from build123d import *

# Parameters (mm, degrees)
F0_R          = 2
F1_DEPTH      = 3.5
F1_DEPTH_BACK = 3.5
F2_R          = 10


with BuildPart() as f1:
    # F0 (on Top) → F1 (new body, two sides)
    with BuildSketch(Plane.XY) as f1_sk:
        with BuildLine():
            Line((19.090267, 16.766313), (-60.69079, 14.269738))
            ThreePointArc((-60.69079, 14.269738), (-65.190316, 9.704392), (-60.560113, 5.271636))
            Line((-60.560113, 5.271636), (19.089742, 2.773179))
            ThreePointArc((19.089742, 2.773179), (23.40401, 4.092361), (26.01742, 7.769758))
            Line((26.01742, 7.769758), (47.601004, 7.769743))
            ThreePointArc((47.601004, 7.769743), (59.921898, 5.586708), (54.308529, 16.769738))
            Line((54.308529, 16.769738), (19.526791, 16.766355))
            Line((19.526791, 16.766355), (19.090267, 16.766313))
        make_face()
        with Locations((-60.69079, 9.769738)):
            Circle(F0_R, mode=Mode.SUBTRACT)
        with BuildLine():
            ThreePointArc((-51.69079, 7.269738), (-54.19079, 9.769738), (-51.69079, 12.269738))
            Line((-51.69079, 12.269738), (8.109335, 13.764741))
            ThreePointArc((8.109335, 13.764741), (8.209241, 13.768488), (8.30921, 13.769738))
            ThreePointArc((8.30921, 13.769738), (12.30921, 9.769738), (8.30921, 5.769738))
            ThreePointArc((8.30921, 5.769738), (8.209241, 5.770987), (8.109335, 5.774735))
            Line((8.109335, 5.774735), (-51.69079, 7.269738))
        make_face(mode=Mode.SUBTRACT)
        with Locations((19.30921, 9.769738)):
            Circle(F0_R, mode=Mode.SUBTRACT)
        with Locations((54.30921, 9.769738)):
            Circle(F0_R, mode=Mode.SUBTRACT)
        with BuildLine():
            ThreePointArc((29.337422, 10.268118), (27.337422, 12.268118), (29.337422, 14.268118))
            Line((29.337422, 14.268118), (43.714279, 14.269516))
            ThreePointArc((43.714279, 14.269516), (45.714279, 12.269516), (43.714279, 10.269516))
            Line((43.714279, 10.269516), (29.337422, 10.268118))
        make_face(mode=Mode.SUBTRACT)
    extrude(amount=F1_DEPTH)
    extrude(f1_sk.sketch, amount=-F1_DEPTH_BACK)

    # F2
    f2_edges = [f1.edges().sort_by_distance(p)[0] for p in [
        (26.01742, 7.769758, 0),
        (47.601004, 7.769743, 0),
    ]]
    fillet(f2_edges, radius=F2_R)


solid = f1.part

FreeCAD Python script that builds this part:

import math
import FreeCAD as App
import Part
import Sketcher
from FreeCAD import Vector


def edges_at(feature, points):
    """Names of the edges that pass closest to the given points."""
    edges = feature.Shape.Edges
    near = lambda p: min(range(len(edges)), key=lambda i: edges[i].distToShape(Part.Vertex(*p))[0])
    return sorted({f"Edge{near(p) + 1}" for p in points})

doc = App.newDocument("Part")
body = doc.addObject("PartDesign::Body", "Body")

# Sketch on XY plane
sketch1 = body.newObject("Sketcher::SketchObject", "Sketch")
sketch1.AttachmentSupport = (doc.getObject("XY_Plane"), [""])
sketch1.MapMode = "FlatFace"
sketch1.addGeometry([
    Part.LineSegment(Vector(19.09, 16.77, 0), Vector(-60.69, 14.27, 0)),  # 0
    Part.ArcOfCircle(Part.Circle(Vector(-60.69, 9.77, 0), Vector(0, 0, 1), 4.5), math.radians(90), math.radians(272)),  # 1
    Part.LineSegment(Vector(-60.56, 5.27, 0), Vector(19.09, 2.77, 0)),  # 2
    Part.ArcOfCircle(Part.Circle(Vector(19.31, 9.77, 0), Vector(0, 0, 1), 7), math.radians(-92), math.radians(-17)),  # 3
    Part.LineSegment(Vector(26.02, 7.77, 0), Vector(47.6, 7.77, 0)),  # 4
    Part.ArcOfCircle(Part.Circle(Vector(54.31, 9.77, 0), Vector(0, 0, 1), 7), math.radians(-163), math.radians(90)),  # 5
    Part.LineSegment(Vector(54.31, 16.77, 0), Vector(19.53, 16.77, 0)),  # 6
    Part.LineSegment(Vector(19.53, 16.77, 0), Vector(19.09, 16.77, 0)),  # 7
    Part.Circle(Vector(-60.69, 9.77, 0), Vector(0, 0, 1), 2),  # 8
    Part.LineSegment(Vector(8.11, 5.77, 0), Vector(-51.69, 7.27, 0)),  # 9
    Part.ArcOfCircle(Part.Circle(Vector(-51.69, 9.77, 0), Vector(0, 0, 1), 2.5), math.radians(90), math.radians(270)),  # 10
    Part.LineSegment(Vector(-51.69, 12.27, 0), Vector(8.11, 13.76, 0)),  # 11
    Part.ArcOfCircle(Part.Circle(Vector(8.31, 9.77, 0), Vector(0, 0, 1), 4), math.radians(90), math.radians(92.86)),  # 12
    Part.ArcOfCircle(Part.Circle(Vector(8.31, 9.77, 0), Vector(0, 0, 1), 4), math.radians(-90), math.radians(90)),  # 13
    Part.ArcOfCircle(Part.Circle(Vector(8.31, 9.77, 0), Vector(0, 0, 1), 4), math.radians(-92.86), math.radians(-90)),  # 14
    Part.Circle(Vector(19.31, 9.77, 0), Vector(0, 0, 1), 2),  # 15
    Part.Circle(Vector(54.31, 9.77, 0), Vector(0, 0, 1), 2),  # 16
    Part.LineSegment(Vector(43.71, 10.27, 0), Vector(29.34, 10.27, 0)),  # 17
    Part.ArcOfCircle(Part.Circle(Vector(29.34, 12.27, 0), Vector(0, 0, 1), 2), math.radians(90), math.radians(270)),  # 18
    Part.LineSegment(Vector(29.34, 14.27, 0), Vector(43.71, 14.27, 0)),  # 19
    Part.ArcOfCircle(Part.Circle(Vector(43.71, 12.27, 0), Vector(0, 0, 1), 2), math.radians(-90), math.radians(90)),  # 20
], False)
sketch1.addConstraint([
    Sketcher.Constraint("Coincident", 0, 2, 1, 1),
    Sketcher.Constraint("Coincident", 1, 2, 2, 1),
    Sketcher.Constraint("Tangent", 2, 2, 3, 1),
    Sketcher.Constraint("Coincident", 3, 2, 4, 1),
    Sketcher.Constraint("Coincident", 4, 2, 5, 1),
    Sketcher.Constraint("Tangent", 5, 2, 6, 1),
    Sketcher.Constraint("Coincident", 6, 2, 7, 1),
    Sketcher.Constraint("Coincident", 7, 2, 0, 1),
    Sketcher.Constraint("Coincident", 9, 2, 10, 2),
    Sketcher.Constraint("Coincident", 10, 1, 11, 1),
    Sketcher.Constraint("Coincident", 11, 2, 12, 2),
    Sketcher.Constraint("Coincident", 12, 1, 13, 2),
    Sketcher.Constraint("Coincident", 13, 1, 14, 2),
    Sketcher.Constraint("Coincident", 14, 1, 9, 1),
    Sketcher.Constraint("Coincident", 17, 2, 18, 2),
    Sketcher.Constraint("Coincident", 18, 1, 19, 1),
    Sketcher.Constraint("Coincident", 19, 2, 20, 2),
    Sketcher.Constraint("Coincident", 20, 1, 17, 1),
    Sketcher.Constraint("Coincident", 8, 3, 1, 3),
    Sketcher.Constraint("Coincident", 15, 3, 3, 3),
    Sketcher.Constraint("Coincident", 16, 3, 5, 3),
    Sketcher.Constraint("Equal", 3, 5),
    Sketcher.Constraint("Equal", 8, 15),
    Sketcher.Constraint("Equal", 15, 16),
    Sketcher.Constraint("Equal", 16, 18),
    Sketcher.Constraint("Equal", 18, 20),
    Sketcher.Constraint("Parallel", 6, 7),
    Sketcher.Constraint("Parallel", 7, 17),
    Sketcher.Constraint("Horizontal", 1, 3, 3, 3),
    Sketcher.Constraint("Horizontal", 3, 3, 5, 3),
    Sketcher.Constraint("Horizontal", 8, 3, 10, 3),
    Sketcher.Constraint("Horizontal", 10, 3, 13, 3),
    Sketcher.Constraint("Vertical", 8, 3, 0, 2),
    Sketcher.Constraint("Vertical", 10, 3, 9, 2),
    Sketcher.Constraint("Vertical", 9, 2, 10, 1),
    Sketcher.Constraint("Vertical", 13, 3, 12, 1),
    Sketcher.Constraint("Vertical", 12, 1, 13, 1),
    Sketcher.Constraint("Vertical", 11, 2, 14, 1),
    Sketcher.Constraint("Vertical", 18, 3, 17, 2),
    Sketcher.Constraint("Vertical", 17, 2, 18, 1),
    Sketcher.Constraint("Vertical", 20, 3, 19, 2),
    Sketcher.Constraint("Vertical", 19, 2, 20, 1),
    Sketcher.Constraint("Diameter", 8, 4.0),
    Sketcher.Constraint("Radius", 3, 7.000002),
    Sketcher.Constraint("Radius", 13, 4.0),
    Sketcher.Constraint("Radius", 1, 4.5),
    Sketcher.Constraint("Radius", 10, 2.5),
    Sketcher.Constraint("DistanceX", 1, 3, 3, 3, 79.999999),
    Sketcher.Constraint("DistanceX", 3, 3, 5, 3, 35.000001),
    Sketcher.Constraint("DistanceX", 8, 3, 10, 3, 9.0),
    Sketcher.Constraint("DistanceX", 13, 3, 3, 3, 10.999999),
    Sketcher.Constraint("Radius", 12, 4.001653),
    Sketcher.Constraint("Radius", 14, 3.998453),
    Sketcher.Constraint("DistanceY", 18, 3, 20, 3, 0.001398),
    Sketcher.Constraint("Distance", 0, 79.82011),
    Sketcher.Constraint("Distance", 2, 79.689031),
    Sketcher.Constraint("Distance", 6, 34.781738),
    Sketcher.Constraint("Distance", 9, 59.81881),
    Sketcher.Constraint("DistanceX", 1, 3, -1, 1, 60.690791),
    Sketcher.Constraint("DistanceY", -1, 1, 1, 3, 9.769738),
    Sketcher.Constraint("DistanceX", -1, 1, 18, 3, 29.337422),
    Sketcher.Constraint("DistanceX", -1, 1, 20, 3, 43.714279),
    Sketcher.Constraint("DistanceX", -1, 1, 3, 2, 26.01742),
    Sketcher.Constraint("DistanceY", -1, 1, 11, 2, 13.764741),
    Sketcher.Constraint("DistanceY", 15, 3, 18, 3, 2.49838),
    Sketcher.Constraint("DistanceX", 14, 3, 18, 3, 21.028248),
    Sketcher.Constraint("Distance", 4, 21.583584),
])
pad1 = body.newObject("PartDesign::Pad", "Pad")
pad1.Profile = sketch1
pad1.Type = "TwoLengths"
pad1.Length = 3.5
pad1.Length2 = 3.5
doc.recompute()

fillet = body.newObject("PartDesign::Fillet", "Fillet")
fillet.Base = (pad1, edges_at(pad1, [(26.017, 7.77, 0), (47.601, 7.77, 0)]))
fillet.Radius = 10

doc.recompute()
